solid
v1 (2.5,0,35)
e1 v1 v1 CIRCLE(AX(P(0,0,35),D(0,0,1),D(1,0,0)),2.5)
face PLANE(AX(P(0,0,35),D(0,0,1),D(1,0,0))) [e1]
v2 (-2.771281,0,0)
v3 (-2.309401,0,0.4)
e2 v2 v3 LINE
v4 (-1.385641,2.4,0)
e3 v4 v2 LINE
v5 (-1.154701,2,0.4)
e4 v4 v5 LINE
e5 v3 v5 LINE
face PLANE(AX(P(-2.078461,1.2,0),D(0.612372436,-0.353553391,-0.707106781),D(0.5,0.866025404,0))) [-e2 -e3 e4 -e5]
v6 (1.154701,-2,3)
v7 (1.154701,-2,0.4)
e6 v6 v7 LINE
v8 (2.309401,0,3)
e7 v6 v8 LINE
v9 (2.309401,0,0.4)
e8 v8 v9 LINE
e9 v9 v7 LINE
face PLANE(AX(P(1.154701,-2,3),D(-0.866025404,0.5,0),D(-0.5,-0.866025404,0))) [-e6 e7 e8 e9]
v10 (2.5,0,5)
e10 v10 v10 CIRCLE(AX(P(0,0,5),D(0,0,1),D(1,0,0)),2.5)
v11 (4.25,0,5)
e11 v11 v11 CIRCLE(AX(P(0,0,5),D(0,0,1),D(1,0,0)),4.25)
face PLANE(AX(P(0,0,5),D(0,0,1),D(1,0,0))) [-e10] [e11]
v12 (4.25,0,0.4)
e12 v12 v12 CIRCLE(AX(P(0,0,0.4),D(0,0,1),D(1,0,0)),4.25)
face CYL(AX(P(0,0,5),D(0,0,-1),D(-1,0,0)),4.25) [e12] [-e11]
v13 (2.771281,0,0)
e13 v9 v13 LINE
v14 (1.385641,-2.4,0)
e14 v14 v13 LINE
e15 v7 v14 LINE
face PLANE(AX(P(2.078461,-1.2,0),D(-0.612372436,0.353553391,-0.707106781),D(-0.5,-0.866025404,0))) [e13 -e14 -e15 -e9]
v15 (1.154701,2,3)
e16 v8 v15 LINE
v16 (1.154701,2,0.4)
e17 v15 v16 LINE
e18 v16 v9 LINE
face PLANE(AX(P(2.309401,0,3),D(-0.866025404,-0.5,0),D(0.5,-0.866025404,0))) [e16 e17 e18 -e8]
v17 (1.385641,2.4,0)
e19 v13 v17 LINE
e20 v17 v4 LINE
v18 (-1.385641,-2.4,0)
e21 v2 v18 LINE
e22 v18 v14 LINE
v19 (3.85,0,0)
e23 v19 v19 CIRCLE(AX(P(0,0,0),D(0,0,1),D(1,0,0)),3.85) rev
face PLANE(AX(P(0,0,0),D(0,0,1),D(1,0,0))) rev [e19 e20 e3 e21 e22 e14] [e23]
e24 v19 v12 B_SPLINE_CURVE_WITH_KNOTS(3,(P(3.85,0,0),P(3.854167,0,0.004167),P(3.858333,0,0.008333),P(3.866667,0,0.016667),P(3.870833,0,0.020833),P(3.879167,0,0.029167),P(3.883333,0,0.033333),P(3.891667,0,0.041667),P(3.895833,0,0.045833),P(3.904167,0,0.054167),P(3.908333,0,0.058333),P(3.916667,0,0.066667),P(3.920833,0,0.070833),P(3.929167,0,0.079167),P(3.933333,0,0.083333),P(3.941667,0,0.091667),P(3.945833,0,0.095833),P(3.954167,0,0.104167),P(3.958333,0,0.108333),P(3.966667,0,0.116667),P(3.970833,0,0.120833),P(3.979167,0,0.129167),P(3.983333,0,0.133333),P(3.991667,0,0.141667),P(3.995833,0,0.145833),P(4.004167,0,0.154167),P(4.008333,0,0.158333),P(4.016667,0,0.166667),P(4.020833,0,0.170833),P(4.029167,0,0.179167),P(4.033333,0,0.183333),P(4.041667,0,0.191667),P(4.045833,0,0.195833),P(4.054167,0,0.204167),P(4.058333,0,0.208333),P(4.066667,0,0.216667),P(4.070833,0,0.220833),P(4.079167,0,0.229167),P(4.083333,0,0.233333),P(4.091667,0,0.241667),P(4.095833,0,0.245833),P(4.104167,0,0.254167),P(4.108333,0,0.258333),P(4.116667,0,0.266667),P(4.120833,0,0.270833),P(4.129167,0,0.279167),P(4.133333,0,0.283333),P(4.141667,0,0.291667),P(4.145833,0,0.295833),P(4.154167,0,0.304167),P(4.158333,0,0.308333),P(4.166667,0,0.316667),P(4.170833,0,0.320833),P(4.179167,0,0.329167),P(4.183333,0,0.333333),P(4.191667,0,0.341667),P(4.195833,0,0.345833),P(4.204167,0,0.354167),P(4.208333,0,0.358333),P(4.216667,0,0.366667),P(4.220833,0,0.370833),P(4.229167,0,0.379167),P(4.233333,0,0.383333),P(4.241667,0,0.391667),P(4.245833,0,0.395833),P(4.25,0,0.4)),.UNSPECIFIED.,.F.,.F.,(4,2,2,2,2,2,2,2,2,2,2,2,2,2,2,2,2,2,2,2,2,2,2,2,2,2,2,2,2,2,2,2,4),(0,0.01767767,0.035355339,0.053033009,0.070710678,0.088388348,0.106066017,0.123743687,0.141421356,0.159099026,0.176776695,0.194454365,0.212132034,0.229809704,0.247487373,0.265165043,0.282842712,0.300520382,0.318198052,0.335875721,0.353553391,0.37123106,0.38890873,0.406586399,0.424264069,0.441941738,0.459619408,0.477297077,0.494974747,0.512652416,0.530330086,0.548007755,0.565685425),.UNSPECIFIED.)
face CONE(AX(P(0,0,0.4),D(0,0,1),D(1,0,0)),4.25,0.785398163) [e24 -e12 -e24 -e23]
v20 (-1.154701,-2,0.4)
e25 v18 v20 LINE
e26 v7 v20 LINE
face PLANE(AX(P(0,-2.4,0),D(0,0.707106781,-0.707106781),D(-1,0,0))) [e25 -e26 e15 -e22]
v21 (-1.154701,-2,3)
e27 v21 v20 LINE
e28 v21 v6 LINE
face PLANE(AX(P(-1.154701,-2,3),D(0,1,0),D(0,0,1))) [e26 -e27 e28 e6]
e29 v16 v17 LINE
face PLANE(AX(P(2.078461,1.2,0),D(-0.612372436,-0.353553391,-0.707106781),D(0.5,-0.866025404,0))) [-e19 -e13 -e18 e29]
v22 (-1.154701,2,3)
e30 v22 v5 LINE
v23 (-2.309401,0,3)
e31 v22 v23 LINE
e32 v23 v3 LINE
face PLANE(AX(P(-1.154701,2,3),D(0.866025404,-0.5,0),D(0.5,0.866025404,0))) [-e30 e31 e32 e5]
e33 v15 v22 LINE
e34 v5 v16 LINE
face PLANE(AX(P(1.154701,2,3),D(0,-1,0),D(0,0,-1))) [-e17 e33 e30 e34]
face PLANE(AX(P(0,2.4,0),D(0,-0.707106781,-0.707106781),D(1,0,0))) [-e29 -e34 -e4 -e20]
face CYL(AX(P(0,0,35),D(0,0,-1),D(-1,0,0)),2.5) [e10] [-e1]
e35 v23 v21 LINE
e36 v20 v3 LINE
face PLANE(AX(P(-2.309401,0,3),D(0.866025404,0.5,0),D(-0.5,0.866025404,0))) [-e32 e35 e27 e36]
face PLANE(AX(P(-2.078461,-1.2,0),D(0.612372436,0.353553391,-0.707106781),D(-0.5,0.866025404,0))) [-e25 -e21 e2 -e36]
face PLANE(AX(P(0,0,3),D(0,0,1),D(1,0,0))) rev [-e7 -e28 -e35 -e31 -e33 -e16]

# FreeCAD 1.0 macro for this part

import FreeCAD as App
import Part
import Sketcher
Q = App.Units.Quantity


def edges_at(feature, points):
    """Names of the edges that pass closest to the given points."""
    edges = feature.Shape.Edges
    near = lambda p: min(range(len(edges)), key=lambda i: edges[i].distToShape(Part.Vertex(*p))[0])
    return sorted({f"Edge{near(p) + 1}" for p in points})

doc = App.newDocument("Part")
params = doc.addObject("Spreadsheet::Sheet", "Params")
for row, (alias, value) in enumerate([
    ("sketch1_diameter", "5 mm"),
    ("pad1_length", "35 mm"),
    ("sketch2_diameter", "8.5 mm"),
    ("pad2_length", "5 mm"),
    ("pocket1_length", "3 mm"),
    ("chamfer_size", "0.4 mm"),
], start=1):
    params.set(f"A{row}", alias)
    params.set(f"B{row}", "=" + value)
    params.setAlias(f"B{row}", alias)

body = doc.addObject("PartDesign::Body", "Body")

sketch1 = body.newObject("Sketcher::SketchObject", "Sketch")
sketch1.AttachmentSupport = (doc.getObject("XY_Plane"), [""])
sketch1.MapMode = "FlatFace"
sketch1.addGeometry(Part.Circle(App.Vector(0, 0, 0), App.Vector(0, 0, 1), 2.5), False)
sketch1.addConstraint(Sketcher.Constraint("Coincident", 0, 3, -1, 1))
sketch1.addConstraint(Sketcher.Constraint("Diameter", 0, Q("5 mm")))
sketch1.setExpression("Constraints[1]", "Params.sketch1_diameter")
pad1 = body.newObject("PartDesign::Pad", "Pad")
pad1.Profile = sketch1
pad1.setExpression("Length", "Params.pad1_length")

sketch2 = body.newObject("Sketcher::SketchObject", "Sketch001")
sketch2.AttachmentSupport = (doc.getObject("XY_Plane"), [""])
sketch2.MapMode = "FlatFace"
sketch2.addGeometry(Part.Circle(App.Vector(0, 0, 0), App.Vector(0, 0, 1), 4.2), False)
sketch2.addConstraint(Sketcher.Constraint("Coincident", 0, 3, -1, 1))
sketch2.addConstraint(Sketcher.Constraint("Diameter", 0, Q("8.5 mm")))
sketch2.setExpression("Constraints[1]", "Params.sketch2_diameter")
pad2 = body.newObject("PartDesign::Pad", "Pad001")
pad2.Profile = sketch2
pad2.setExpression("Length", "Params.pad2_length")

sketch3 = body.newObject("Sketcher::SketchObject", "Sketch002")
sketch3.AttachmentSupport = (doc.getObject("XY_Plane"), [""])
sketch3.MapMode = "FlatFace"
sketch3.addGeometry(Part.LineSegment(App.Vector(2.3, 0, 0), App.Vector(1.2, 2, 0)), False)
sketch3.addGeometry(Part.LineSegment(App.Vector(1.2, 2, 0), App.Vector(-1.2, 2, 0)), False)
sketch3.addGeometry(Part.LineSegment(App.Vector(-1.2, 2, 0), App.Vector(-2.3, 0, 0)), False)
sketch3.addGeometry(Part.LineSegment(App.Vector(-2.3, 0, 0), App.Vector(-1.2, -2, 0)), False)
sketch3.addGeometry(Part.LineSegment(App.Vector(-1.2, -2, 0), App.Vector(1.2, -2, 0)), False)
sketch3.addGeometry(Part.LineSegment(App.Vector(1.2, -2, 0), App.Vector(2.3, 0, 0)), False)
sketch3.addConstraint(Sketcher.Constraint("Coincident", 0, 2, 1, 1))
sketch3.addConstraint(Sketcher.Constraint("Coincident", 1, 2, 2, 1))
sketch3.addConstraint(Sketcher.Constraint("Coincident", 2, 2, 3, 1))
sketch3.addConstraint(Sketcher.Constraint("Coincident", 3, 2, 4, 1))
sketch3.addConstraint(Sketcher.Constraint("Coincident", 4, 2, 5, 1))
sketch3.addConstraint(Sketcher.Constraint("Coincident", 5, 2, 0, 1))
sketch3.addConstraint(Sketcher.Constraint("Horizontal", 1))
sketch3.addConstraint(Sketcher.Constraint("Horizontal", 4))
sketch3.addConstraint(Sketcher.Constraint("Symmetric", 0, 2, 3, 2, -1, 1))
sketch3.addConstraint(Sketcher.Constraint("Symmetric", 2, 2, 5, 2, -1, 1))
sketch3.addConstraint(Sketcher.Constraint("PointOnObject", 2, 2, -1))
sketch3.addConstraint(Sketcher.Constraint("Parallel", 2, 5))
sketch3.addConstraint(Sketcher.Constraint("Vertical", 1, 2, 3, 2))
sketch3.addConstraint(Sketcher.Constraint("Angle", 0, Q("120 deg")))
sketch3.addConstraint(Sketcher.Constraint("DistanceY", -1, 1, 0, 2, Q("2 mm")))
sketch3.addConstraint(Sketcher.Constraint("DistanceX", 1, 2, 1, 1, Q("2.309401 mm")))
pocket1 = body.newObject("PartDesign::Pocket", "Pocket")
pocket1.Profile = sketch3
pocket1.setExpression("Length", "Params.pocket1_length")
pocket1.Reversed = True
doc.recompute()

chamfer = body.newObject("PartDesign::Chamfer", "Chamfer")
chamfer.Base = (pocket1, edges_at(pocket1, [
    (1.732, -1, 0),
    (1.732, 1, 0),
    (0, 2, 0),
    (-1.732, 1, 0),
    (-1.732, -1, 0),
    (0, -2, 0),
    (-4.25, 0, 0),
]))
chamfer.setExpression("Size", "Params.chamfer_size")

doc.recompute()
